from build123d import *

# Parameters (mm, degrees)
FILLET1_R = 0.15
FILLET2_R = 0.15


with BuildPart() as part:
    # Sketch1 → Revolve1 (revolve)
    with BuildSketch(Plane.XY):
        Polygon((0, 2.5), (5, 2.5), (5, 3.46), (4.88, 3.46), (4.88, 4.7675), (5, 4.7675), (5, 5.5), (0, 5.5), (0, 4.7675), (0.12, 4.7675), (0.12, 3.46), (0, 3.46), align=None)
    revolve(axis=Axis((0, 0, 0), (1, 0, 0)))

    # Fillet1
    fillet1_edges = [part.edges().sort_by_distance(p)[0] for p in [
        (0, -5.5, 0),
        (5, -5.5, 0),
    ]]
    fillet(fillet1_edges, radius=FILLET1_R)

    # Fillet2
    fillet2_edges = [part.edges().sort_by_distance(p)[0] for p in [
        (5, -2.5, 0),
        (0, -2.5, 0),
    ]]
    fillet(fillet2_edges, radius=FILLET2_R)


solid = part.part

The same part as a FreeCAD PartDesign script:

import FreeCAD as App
import Part
import Sketcher
from FreeCAD import Vector
Q = App.Units.Quantity


def edges_at(feature, points):
    """Names of the edges that pass closest to the given points."""
    edges = feature.Shape.Edges
    near = lambda p: min(range(len(edges)), key=lambda i: edges[i].distToShape(Part.Vertex(*p))[0])
    return sorted({f"Edge{near(p) + 1}" for p in points})

doc = App.newDocument("Part")
body = doc.addObject("PartDesign::Body", "Body")

# Sketch on XY plane
sketch1 = body.newObject("Sketcher::SketchObject", "Sketch")
sketch1.AttachmentSupport = (doc.getObject("XY_Plane"), [""])
sketch1.MapMode = "FlatFace"
sketch1.addGeometry(Part.LineSegment(Vector(0, 2.5, 0), Vector(5, 2.5, 0)), False)
sketch1.addGeometry(Part.LineSegment(Vector(5, 2.5, 0), Vector(5, 3.46, 0)), False)
sketch1.addGeometry(Part.LineSegment(Vector(5, 3.46, 0), Vector(4.88, 3.46, 0)), False)
sketch1.addGeometry(Part.LineSegment(Vector(4.88, 3.46, 0), Vector(4.88, 4.7675, 0)), False)
sketch1.addGeometry(Part.LineSegment(Vector(4.88, 4.7675, 0), Vector(5, 4.7675, 0)), False)
sketch1.addGeometry(Part.LineSegment(Vector(5, 4.7675, 0), Vector(5, 5.5, 0)), False)
sketch1.addGeometry(Part.LineSegment(Vector(5, 5.5, 0), Vector(0, 5.5, 0)), False)
sketch1.addGeometry(Part.LineSegment(Vector(0, 5.5, 0), Vector(0, 4.7675, 0)), False)
sketch1.addGeometry(Part.LineSegment(Vector(0, 4.7675, 0), Vector(0.12, 4.7675, 0)), False)
sketch1.addGeometry(Part.LineSegment(Vector(0.12, 4.7675, 0), Vector(0.12, 3.46, 0)), False)
sketch1.addGeometry(Part.LineSegment(Vector(0.12, 3.46, 0), Vector(0, 3.46, 0)), False)
sketch1.addGeometry(Part.LineSegment(Vector(0, 3.46, 0), Vector(0, 2.5, 0)), False)
sketch1.addConstraint(Sketcher.Constraint("Coincident", 0, 2, 1, 1))
sketch1.addConstraint(Sketcher.Constraint("Coincident", 1, 2, 2, 1))
sketch1.addConstraint(Sketcher.Constraint("Coincident", 2, 2, 3, 1))
sketch1.addConstraint(Sketcher.Constraint("Coincident", 3, 2, 4, 1))
sketch1.addConstraint(Sketcher.Constraint("Coincident", 4, 2, 5, 1))
sketch1.addConstraint(Sketcher.Constraint("Coincident", 5, 2, 6, 1))
sketch1.addConstraint(Sketcher.Constraint("Coincident", 6, 2, 7, 1))
sketch1.addConstraint(Sketcher.Constraint("Coincident", 7, 2, 8, 1))
sketch1.addConstraint(Sketcher.Constraint("Coincident", 8, 2, 9, 1))
sketch1.addConstraint(Sketcher.Constraint("Coincident", 9, 2, 10, 1))
sketch1.addConstraint(Sketcher.Constraint("Coincident", 10, 2, 11, 1))
sketch1.addConstraint(Sketcher.Constraint("Coincident", 11, 2, 0, 1))
sketch1.addConstraint(Sketcher.Constraint("Horizontal", 0))
sketch1.addConstraint(Sketcher.Constraint("Vertical", 1))
sketch1.addConstraint(Sketcher.Constraint("Horizontal", 2))
sketch1.addConstraint(Sketcher.Constraint("Vertical", 3))
sketch1.addConstraint(Sketcher.Constraint("Horizontal", 4))
sketch1.addConstraint(Sketcher.Constraint("Vertical", 5))
sketch1.addConstraint(Sketcher.Constraint("Horizontal", 6))
sketch1.addConstraint(Sketcher.Constraint("Vertical", 7))
sketch1.addConstraint(Sketcher.Constraint("Horizontal", 8))
sketch1.addConstraint(Sketcher.Constraint("Vertical", 9))
sketch1.addConstraint(Sketcher.Constraint("Horizontal", 10))
sketch1.addConstraint(Sketcher.Constraint("Vertical", 11))
sketch1.addConstraint(Sketcher.Constraint("PointOnObject", 6, 2, -2))
sketch1.addConstraint(Sketcher.Constraint("PointOnObject", 10, 2, -2))
sketch1.addConstraint(Sketcher.Constraint("Horizontal", 4, 2, 7, 2))
sketch1.addConstraint(Sketcher.Constraint("Horizontal", 2, 2, 9, 2))
sketch1.addConstraint(Sketcher.Constraint("Vertical", 1, 2, 4, 2))
sketch1.addConstraint(Sketcher.Constraint("Equal", 4, 8))
sketch1.addConstraint(Sketcher.Constraint("DistanceX", 0, 1, 0, 2, Q("5 mm")))
sketch1.addConstraint(Sketcher.Constraint("DistanceY", 0, 2, 5, 2, Q("3 mm")))
sketch1.addConstraint(Sketcher.Constraint("DistanceX", 2, 2, 2, 1, Q("0.12 mm")))
sketch1.addConstraint(Sketcher.Constraint("DistanceY", 1, 1, 1, 2, Q("0.96 mm")))
sketch1.addConstraint(Sketcher.Constraint("DistanceY", -1, 1, 0, 2, Q("2.5 mm")))
sketch1.addConstraint(Sketcher.Constraint("DistanceY", 3, 1, 3, 2, Q("1.3075 mm")))
revolution = body.newObject("PartDesign::Revolution", "Revolution")
revolution.Profile = sketch1
revolution.ReferenceAxis = (sketch1, ["H_Axis"])
revolution.Angle = 360
doc.recompute()

fillet = body.newObject("PartDesign::Fillet", "Fillet")
fillet.Base = (revolution, edges_at(revolution, [(0, -5.5, 0), (5, -5.5, 0)]))
fillet.Radius = 0.15
doc.recompute()

fillet2 = body.newObject("PartDesign::Fillet", "Fillet001")
fillet2.Base = (fillet, edges_at(fillet, [(5, -2.5, 0), (0, -2.5, 0)]))
fillet2.Radius = 0.15

doc.recompute()
